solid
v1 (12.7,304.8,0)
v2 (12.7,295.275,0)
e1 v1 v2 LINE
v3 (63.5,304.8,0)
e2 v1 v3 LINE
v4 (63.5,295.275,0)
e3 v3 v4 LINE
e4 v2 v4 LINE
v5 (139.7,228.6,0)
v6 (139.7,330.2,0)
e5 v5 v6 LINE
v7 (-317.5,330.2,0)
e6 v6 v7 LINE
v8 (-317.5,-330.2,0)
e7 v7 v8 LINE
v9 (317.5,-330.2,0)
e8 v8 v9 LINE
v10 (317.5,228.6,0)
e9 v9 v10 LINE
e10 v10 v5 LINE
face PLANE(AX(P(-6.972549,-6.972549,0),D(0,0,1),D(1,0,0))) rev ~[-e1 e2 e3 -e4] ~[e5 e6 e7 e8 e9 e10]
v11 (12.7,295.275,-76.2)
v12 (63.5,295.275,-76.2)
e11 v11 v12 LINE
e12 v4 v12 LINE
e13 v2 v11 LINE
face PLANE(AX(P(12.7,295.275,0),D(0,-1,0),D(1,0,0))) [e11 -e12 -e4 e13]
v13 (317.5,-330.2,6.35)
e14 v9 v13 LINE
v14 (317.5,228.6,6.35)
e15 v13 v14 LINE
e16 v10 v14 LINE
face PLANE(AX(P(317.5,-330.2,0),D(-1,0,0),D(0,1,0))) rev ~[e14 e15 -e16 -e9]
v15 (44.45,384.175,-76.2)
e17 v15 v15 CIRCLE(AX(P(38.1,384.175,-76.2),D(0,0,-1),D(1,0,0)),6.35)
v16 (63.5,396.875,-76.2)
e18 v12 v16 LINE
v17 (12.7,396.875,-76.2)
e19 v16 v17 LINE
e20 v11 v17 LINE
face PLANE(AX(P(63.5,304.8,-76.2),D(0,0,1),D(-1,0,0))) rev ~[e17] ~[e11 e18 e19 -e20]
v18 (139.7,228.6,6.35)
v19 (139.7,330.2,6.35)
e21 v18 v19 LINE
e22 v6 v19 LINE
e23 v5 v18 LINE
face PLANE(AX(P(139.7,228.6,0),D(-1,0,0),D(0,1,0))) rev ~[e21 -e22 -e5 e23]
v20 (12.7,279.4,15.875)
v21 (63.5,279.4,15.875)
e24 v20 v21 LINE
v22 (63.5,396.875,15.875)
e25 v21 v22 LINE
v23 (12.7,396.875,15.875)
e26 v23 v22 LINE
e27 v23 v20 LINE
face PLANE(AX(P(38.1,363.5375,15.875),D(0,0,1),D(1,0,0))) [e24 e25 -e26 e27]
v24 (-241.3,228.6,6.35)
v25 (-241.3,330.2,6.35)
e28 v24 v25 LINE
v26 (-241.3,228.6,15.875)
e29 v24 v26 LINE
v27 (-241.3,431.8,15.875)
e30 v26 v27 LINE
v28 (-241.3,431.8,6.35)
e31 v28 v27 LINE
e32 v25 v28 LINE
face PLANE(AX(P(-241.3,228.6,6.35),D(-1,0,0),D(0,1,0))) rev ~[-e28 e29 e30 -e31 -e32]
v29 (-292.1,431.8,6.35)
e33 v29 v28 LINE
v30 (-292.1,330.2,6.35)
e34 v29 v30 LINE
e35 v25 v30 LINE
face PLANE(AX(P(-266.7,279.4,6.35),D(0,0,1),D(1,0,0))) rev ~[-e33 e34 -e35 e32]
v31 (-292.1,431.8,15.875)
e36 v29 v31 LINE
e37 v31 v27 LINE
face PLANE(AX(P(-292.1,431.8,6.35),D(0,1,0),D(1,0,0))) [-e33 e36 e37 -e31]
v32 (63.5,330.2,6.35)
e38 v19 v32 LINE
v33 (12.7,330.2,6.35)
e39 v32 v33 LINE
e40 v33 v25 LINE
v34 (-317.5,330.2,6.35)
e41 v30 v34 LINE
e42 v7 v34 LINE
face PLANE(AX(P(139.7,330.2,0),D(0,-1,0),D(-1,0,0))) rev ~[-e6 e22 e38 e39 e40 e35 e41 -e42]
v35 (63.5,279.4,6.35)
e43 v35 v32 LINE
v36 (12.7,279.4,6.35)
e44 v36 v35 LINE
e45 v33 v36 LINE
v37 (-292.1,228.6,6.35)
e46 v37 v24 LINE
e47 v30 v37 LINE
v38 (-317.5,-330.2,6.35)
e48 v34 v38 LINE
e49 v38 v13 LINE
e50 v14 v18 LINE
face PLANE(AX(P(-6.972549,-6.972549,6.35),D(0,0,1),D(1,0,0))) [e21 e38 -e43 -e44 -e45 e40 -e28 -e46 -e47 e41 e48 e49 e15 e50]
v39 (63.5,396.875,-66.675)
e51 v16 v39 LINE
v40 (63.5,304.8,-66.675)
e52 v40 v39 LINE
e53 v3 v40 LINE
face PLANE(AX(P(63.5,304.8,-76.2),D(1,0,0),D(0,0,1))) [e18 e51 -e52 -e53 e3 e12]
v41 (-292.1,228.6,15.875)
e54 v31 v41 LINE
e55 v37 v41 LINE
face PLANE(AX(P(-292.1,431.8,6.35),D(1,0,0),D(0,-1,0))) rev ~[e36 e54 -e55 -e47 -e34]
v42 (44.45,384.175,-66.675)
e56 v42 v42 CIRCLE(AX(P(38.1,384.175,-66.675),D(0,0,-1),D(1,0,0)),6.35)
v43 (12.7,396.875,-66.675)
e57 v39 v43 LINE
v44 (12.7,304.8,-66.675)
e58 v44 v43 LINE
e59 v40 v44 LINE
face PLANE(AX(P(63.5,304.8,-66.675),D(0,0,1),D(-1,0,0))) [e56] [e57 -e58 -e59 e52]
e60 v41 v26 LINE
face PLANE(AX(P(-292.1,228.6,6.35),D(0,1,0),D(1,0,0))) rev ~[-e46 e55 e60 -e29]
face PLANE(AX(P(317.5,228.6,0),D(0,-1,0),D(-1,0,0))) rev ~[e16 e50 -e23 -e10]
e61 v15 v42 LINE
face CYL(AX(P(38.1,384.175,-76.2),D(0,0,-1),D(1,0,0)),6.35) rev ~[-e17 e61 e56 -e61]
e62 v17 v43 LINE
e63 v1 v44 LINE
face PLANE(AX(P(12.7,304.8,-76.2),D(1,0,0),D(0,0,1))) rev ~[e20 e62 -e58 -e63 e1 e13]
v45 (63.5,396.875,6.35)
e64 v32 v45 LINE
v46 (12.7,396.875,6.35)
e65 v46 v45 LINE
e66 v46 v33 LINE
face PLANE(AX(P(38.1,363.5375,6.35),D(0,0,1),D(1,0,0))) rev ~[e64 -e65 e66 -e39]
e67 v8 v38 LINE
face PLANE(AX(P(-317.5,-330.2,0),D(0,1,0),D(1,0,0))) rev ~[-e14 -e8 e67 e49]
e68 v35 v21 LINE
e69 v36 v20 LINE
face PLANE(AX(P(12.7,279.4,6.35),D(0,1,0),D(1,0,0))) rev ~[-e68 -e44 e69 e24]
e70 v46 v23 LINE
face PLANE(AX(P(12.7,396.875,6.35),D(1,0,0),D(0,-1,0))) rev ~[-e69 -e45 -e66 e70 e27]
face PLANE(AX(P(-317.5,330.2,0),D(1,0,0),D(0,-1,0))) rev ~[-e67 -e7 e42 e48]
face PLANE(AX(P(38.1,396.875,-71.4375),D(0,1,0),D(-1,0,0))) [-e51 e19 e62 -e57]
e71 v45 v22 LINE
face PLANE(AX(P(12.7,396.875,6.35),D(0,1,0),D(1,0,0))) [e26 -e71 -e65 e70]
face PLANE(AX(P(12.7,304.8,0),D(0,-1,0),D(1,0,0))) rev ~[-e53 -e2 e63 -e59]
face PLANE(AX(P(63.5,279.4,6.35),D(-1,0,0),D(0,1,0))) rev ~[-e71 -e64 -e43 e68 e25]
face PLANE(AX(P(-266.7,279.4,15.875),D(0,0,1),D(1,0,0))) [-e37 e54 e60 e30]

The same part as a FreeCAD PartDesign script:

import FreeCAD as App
import Part
import Sketcher
from FreeCAD import Vector
Q = App.Units.Quantity


def add_polygon(sketch, points):
    """Adds a closed chain of lines whose ends are joined by coincident constraints."""
    first, n = sketch.GeometryCount, len(points)
    for a, b in zip(points, points[1:] + points[:1]):
        sketch.addGeometry(Part.LineSegment(App.Vector(*a, 0), App.Vector(*b, 0)), False)
    for i in range(n):
        sketch.addConstraint(Sketcher.Constraint("Coincident", first + i, 2, first + (i + 1) % n, 1))

doc = App.newDocument("Part")
body = doc.addObject("PartDesign::Body", "Body")

sketch1 = body.newObject("Sketcher::SketchObject", "Sketch")
sketch1.AttachmentSupport = (doc.getObject("XY_Plane"), [""])
sketch1.MapMode = "FlatFace"
add_polygon(sketch1, [(-318, -330), (318, -330), (318, 229), (140, 229), (140, 330), (-318, 330)])
sketch1.addConstraint([
    Sketcher.Constraint("Horizontal", 0),
    Sketcher.Constraint("Vertical", 1),
    Sketcher.Constraint("Horizontal", 2),
    Sketcher.Constraint("Vertical", 3),
    Sketcher.Constraint("Horizontal", 4),
    Sketcher.Constraint("Vertical", 5),
    Sketcher.Constraint("Symmetric", 0, 2, 4, 2, -1, 1),
    Sketcher.Constraint("DistanceX", 0, 1, 0, 2, Q("25 in")),
    Sketcher.Constraint("DistanceX", 2, 2, 2, 1, Q("7 in")),
    Sketcher.Constraint("DistanceY", 1, 1, 1, 2, Q("22 in")),
    Sketcher.Constraint("DistanceY", 3, 1, 3, 2, Q("4 in")),
])
pad1 = body.newObject("PartDesign::Pad", "Pad")
pad1.Profile = sketch1
pad1.Length = Q("0.25 in")

sketch2 = body.newObject("Sketcher::SketchObject", "Sketch001")
sketch2.AttachmentSupport = (doc.getObject("XY_Plane"), [""])
sketch2.MapMode = "FlatFace"
sketch2.AttachmentOffset = App.Placement(Vector(0, 0, 0.25 * 25.4), App.Rotation())
add_polygon(sketch2, [(-292, 229), (-241, 229), (-241, 432), (-292, 432)])
sketch2.addConstraint([
    Sketcher.Constraint("Horizontal", 0),
    Sketcher.Constraint("Vertical", 1),
    Sketcher.Constraint("Horizontal", 2),
    Sketcher.Constraint("Vertical", 3),
    Sketcher.Constraint("DistanceX", 0, 1, 0, 2, Q("2 in")),
    Sketcher.Constraint("DistanceY", 1, 1, 1, 2, Q("8 in")),
    Sketcher.Constraint("DistanceY", -1, 1, 0, 2, Q("9 in")),
    Sketcher.Constraint("DistanceX", 0, 2, -1, 1, Q("9.5 in")),
])
pad2 = body.newObject("PartDesign::Pad", "Pad001")
pad2.Profile = sketch2
pad2.Length = Q("0.375 in")

sketch3 = body.newObject("Sketcher::SketchObject", "Sketch002")
sketch3.AttachmentSupport = (doc.getObject("XY_Plane"), [""])
sketch3.MapMode = "FlatFace"
add_polygon(sketch3, [(13, 295), (13, 305), (64, 305), (64, 295)])
sketch3.addConstraint([
    Sketcher.Constraint("Vertical", 0),
    Sketcher.Constraint("Horizontal", 1),
    Sketcher.Constraint("Vertical", 2),
    Sketcher.Constraint("Horizontal", 3),
    Sketcher.Constraint("DistanceX", 1, 1, 1, 2, Q("2 in")),
    Sketcher.Constraint("DistanceY", -1, 1, 0, 2, Q("12 in")),
    Sketcher.Constraint("DistanceX", -1, 1, 0, 2, Q("0.5 in")),
    Sketcher.Constraint("DistanceY", 0, 1, 0, 2, Q("0.375 in")),
])
pad3 = body.newObject("PartDesign::Pad", "Pad002")
pad3.Profile = sketch3
pad3.Length = Q("3 in")
pad3.Reversed = True

sketch4 = body.newObject("Sketcher::SketchObject", "Sketch003")
sketch4.AttachmentSupport = (doc.getObject("XZ_Plane"), [""])
sketch4.MapMode = "FlatFace"
sketch4.AttachmentOffset = App.Placement(Vector(0, 0, -12 * 25.4), App.Rotation())
add_polygon(sketch4, [(64, -67), (64, -76), (13, -76), (13, -67)])
sketch4.addConstraint([
    Sketcher.Constraint("Vertical", 0),
    Sketcher.Constraint("Horizontal", 1),
    Sketcher.Constraint("Vertical", 2),
    Sketcher.Constraint("Horizontal", 3),
    Sketcher.Constraint("DistanceX", 1, 2, 1, 1, Q("2 in")),
    Sketcher.Constraint("DistanceY", 0, 2, -1, 1, Q("3 in")),
    Sketcher.Constraint("DistanceX", -1, 1, 0, 2, Q("2.5 in")),
    Sketcher.Constraint("DistanceY", 0, 2, 0, 1, Q("0.375 in")),
])
pad4 = body.newObject("PartDesign::Pad", "Pad003")
pad4.Profile = sketch4
pad4.Length = Q("3.625 in")
pad4.Reversed = True

sketch5 = body.newObject("Sketcher::SketchObject", "Sketch004")
sketch5.AttachmentSupport = (doc.getObject("XY_Plane"), [""])
sketch5.MapMode = "FlatFace"
sketch5.AttachmentOffset = App.Placement(Vector(0, 0, -3 * 25.4), App.Rotation())
sketch5.addGeometry(Part.Circle(Vector(38, 384, 0), Vector(0, 0, 1), 6), False)
sketch5.addConstraint([
    Sketcher.Constraint("Diameter", 0, Q("0.5 in")),
    Sketcher.Constraint("DistanceX", -1, 1, 0, 3, Q("1.5 in")),
    Sketcher.Constraint("DistanceY", -1, 1, 0, 3, Q("15.125 in")),
])
pocket1 = body.newObject("PartDesign::Pocket", "Pocket")
pocket1.Profile = sketch5
pocket1.Length = Q("1 in")
pocket1.Reversed = True

sketch6 = body.newObject("Sketcher::SketchObject", "Sketch005")
sketch6.AttachmentSupport = (doc.getObject("XY_Plane"), [""])
sketch6.MapMode = "FlatFace"
sketch6.AttachmentOffset = App.Placement(Vector(0, 0, 0.25 * 25.4), App.Rotation())
add_polygon(sketch6, [(13, 397), (13, 279), (64, 279), (64, 397)])
sketch6.addConstraint([
    Sketcher.Constraint("Vertical", 0),
    Sketcher.Constraint("Horizontal", 1),
    Sketcher.Constraint("Vertical", 2),
    Sketcher.Constraint("Horizontal", 3),
    Sketcher.Constraint("DistanceX", 1, 1, 1, 2, Q("2 in")),
    Sketcher.Constraint("DistanceY", -1, 1, 0, 2, Q("11 in")),
    Sketcher.Constraint("DistanceX", -1, 1, 0, 2, Q("0.5 in")),
    Sketcher.Constraint("DistanceY", 0, 2, 0, 1, Q("4.625 in")),
])
pad5 = body.newObject("PartDesign::Pad", "Pad004")
pad5.Profile = sketch6
pad5.Length = Q("0.375 in")

doc.recompute()
